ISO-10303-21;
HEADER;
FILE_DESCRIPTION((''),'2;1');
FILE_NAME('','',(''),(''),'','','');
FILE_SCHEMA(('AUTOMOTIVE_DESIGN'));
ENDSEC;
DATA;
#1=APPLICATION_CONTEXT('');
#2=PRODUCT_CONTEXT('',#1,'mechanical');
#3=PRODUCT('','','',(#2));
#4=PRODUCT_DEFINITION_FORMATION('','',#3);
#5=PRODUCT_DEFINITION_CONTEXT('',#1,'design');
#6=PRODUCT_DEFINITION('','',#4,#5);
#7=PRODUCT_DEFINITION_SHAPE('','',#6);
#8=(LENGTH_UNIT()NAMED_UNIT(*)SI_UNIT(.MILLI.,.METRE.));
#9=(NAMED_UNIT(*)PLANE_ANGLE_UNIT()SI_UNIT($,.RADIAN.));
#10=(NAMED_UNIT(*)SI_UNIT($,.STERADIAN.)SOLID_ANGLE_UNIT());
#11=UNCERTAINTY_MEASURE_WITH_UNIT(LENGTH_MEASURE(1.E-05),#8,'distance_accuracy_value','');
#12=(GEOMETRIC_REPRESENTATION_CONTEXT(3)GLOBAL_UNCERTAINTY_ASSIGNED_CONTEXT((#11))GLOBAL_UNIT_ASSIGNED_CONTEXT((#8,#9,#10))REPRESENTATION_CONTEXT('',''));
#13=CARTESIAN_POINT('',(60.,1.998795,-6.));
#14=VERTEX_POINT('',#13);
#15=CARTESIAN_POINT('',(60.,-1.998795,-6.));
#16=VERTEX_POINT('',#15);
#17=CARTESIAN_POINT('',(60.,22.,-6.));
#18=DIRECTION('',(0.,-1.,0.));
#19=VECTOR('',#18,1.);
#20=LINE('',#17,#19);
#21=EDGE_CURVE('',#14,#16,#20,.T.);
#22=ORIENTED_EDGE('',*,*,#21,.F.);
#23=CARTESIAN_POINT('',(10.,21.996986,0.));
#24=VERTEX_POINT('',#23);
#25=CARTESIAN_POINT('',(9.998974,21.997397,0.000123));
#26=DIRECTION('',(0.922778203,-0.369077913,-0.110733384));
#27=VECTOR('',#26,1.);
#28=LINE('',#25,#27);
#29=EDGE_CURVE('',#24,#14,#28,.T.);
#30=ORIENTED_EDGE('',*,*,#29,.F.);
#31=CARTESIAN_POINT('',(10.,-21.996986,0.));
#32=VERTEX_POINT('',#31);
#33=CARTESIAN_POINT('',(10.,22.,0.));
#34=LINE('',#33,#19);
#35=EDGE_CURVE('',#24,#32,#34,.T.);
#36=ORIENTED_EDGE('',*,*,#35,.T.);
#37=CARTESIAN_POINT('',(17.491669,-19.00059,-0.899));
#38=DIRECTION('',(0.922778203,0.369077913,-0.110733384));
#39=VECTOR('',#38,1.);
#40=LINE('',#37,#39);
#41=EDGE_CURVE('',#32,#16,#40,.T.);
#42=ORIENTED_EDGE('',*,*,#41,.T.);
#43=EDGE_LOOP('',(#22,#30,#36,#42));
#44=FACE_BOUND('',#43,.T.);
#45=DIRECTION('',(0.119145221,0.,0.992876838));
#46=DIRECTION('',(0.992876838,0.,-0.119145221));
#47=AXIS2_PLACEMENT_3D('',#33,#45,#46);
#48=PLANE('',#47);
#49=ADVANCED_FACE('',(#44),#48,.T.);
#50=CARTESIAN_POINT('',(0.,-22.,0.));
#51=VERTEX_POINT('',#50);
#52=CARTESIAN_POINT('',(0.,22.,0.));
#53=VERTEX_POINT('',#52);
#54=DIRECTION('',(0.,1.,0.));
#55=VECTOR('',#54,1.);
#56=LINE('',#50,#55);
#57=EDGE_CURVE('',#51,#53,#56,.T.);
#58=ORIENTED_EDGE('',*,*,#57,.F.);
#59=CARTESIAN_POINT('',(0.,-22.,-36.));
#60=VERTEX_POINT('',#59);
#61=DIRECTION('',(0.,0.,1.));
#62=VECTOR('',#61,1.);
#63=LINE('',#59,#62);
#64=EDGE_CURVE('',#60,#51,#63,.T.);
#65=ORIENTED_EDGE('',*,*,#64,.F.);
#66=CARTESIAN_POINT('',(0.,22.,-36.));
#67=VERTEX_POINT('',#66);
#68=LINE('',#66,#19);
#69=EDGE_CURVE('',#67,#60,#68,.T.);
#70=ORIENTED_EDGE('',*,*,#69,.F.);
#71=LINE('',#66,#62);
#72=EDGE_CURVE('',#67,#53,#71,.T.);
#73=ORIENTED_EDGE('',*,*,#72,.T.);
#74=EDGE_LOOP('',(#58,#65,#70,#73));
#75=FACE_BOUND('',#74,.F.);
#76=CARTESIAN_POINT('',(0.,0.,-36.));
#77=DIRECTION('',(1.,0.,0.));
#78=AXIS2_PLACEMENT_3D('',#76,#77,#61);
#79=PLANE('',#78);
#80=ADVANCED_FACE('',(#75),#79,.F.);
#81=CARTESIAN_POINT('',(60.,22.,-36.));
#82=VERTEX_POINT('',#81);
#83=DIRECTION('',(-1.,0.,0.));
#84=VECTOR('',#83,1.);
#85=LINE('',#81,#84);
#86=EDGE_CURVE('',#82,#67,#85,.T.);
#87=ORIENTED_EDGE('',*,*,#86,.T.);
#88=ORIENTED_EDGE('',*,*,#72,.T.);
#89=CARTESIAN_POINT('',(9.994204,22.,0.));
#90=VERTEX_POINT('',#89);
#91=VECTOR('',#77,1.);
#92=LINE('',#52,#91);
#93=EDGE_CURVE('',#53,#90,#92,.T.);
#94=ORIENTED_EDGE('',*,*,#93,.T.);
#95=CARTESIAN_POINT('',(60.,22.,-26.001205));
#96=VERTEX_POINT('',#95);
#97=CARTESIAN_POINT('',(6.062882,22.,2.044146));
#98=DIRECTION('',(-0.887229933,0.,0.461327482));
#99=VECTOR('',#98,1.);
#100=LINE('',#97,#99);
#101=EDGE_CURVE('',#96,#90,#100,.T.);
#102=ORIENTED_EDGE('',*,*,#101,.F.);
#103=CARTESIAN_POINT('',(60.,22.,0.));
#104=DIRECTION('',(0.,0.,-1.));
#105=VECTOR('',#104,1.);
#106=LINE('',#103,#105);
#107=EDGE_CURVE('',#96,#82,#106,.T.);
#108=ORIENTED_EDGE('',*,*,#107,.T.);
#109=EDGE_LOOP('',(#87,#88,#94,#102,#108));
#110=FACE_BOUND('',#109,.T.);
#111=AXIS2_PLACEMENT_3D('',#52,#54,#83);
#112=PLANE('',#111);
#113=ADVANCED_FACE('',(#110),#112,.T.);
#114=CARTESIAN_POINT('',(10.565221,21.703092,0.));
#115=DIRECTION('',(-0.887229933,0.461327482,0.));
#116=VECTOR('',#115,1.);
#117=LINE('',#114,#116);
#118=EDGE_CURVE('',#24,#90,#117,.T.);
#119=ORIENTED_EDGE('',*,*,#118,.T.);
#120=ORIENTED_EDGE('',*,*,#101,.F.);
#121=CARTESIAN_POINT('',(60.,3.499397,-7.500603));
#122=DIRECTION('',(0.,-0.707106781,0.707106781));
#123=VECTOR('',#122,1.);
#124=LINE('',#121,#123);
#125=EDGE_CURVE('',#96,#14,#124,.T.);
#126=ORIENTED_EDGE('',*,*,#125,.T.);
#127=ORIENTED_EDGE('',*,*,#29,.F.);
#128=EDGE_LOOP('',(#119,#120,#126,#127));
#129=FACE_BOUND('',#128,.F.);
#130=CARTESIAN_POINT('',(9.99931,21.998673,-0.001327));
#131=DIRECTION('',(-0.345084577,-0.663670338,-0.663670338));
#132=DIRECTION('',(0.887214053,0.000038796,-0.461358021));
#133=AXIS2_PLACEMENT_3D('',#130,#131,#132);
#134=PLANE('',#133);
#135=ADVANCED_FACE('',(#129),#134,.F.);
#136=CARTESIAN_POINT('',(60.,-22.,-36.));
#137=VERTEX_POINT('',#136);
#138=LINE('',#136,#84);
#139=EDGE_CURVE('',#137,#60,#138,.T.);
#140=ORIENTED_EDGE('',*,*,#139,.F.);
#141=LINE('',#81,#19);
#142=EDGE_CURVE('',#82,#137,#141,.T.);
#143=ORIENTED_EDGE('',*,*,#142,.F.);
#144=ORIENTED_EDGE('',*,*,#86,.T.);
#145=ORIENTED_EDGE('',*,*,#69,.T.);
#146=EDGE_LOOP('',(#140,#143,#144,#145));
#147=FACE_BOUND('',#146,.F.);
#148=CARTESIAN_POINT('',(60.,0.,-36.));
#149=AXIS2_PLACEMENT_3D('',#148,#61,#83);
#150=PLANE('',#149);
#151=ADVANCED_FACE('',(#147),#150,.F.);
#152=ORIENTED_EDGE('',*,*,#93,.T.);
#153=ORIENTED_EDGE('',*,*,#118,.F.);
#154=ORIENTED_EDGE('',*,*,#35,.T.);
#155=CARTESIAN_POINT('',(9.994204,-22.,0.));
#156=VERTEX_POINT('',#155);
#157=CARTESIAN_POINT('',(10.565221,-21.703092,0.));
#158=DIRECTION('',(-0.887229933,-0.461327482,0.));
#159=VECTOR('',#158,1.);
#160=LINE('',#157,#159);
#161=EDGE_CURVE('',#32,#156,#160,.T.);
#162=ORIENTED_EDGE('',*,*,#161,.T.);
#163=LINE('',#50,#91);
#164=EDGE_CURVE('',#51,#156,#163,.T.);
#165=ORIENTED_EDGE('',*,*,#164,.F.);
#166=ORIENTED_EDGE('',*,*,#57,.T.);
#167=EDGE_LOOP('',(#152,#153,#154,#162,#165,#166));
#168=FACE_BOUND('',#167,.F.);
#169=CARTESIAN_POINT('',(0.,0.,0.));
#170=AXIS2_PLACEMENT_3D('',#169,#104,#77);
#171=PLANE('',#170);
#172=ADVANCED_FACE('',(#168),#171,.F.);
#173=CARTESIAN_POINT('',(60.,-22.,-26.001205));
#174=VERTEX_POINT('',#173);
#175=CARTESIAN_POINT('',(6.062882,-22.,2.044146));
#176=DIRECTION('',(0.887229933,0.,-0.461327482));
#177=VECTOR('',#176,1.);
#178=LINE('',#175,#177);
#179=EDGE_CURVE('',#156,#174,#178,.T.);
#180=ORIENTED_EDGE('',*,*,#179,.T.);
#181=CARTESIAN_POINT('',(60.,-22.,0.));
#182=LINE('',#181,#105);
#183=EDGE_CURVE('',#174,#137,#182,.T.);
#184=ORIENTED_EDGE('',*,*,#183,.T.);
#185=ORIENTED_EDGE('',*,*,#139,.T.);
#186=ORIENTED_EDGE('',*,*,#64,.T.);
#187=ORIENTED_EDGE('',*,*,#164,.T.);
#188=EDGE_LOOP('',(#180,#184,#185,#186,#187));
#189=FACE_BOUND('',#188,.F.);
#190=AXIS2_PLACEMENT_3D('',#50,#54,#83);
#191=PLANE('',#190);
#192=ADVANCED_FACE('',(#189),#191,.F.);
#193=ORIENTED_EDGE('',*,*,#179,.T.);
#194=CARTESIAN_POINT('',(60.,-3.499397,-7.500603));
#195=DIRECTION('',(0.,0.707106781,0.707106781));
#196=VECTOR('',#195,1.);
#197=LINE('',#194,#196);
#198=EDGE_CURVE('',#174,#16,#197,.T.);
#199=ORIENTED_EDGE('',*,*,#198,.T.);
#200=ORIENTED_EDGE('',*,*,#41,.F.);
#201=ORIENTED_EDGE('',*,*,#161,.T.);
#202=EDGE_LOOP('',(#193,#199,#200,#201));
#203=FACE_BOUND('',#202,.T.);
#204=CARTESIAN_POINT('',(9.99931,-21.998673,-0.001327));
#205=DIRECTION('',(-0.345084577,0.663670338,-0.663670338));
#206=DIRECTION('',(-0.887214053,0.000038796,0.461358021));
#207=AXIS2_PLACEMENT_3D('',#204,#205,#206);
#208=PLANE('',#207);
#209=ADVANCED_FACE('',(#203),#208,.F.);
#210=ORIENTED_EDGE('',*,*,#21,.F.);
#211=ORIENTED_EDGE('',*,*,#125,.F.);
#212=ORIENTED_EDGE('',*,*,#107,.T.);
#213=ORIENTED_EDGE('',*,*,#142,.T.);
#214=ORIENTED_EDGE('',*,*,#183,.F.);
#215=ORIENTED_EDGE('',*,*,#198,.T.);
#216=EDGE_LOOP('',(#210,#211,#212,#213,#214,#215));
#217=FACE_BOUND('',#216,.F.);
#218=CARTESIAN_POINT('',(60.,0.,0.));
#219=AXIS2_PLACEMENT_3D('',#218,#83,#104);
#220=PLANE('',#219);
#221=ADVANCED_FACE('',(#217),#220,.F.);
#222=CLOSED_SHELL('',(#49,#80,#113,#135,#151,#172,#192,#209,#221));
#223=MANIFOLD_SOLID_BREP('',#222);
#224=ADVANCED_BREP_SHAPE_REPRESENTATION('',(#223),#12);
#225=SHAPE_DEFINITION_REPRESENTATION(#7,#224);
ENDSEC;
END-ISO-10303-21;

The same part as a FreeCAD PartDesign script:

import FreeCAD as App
import Part
import Sketcher
from FreeCAD import Vector


def add_polygon(sketch, points):
    """Adds a closed chain of lines whose ends are joined by coincident constraints."""
    first, n = sketch.GeometryCount, len(points)
    for a, b in zip(points, points[1:] + points[:1]):
        sketch.addGeometry(Part.LineSegment(App.Vector(*a, 0), App.Vector(*b, 0)), False)
    for i in range(n):
        sketch.addConstraint(Sketcher.Constraint("Coincident", first + i, 2, first + (i + 1) % n, 1))

doc = App.newDocument("Part")
body = doc.addObject("PartDesign::Body", "Body")

# Sketch on XZ plane
sketch1 = doc.addObject("Sketcher::SketchObject", "Sketch")
body.addObject(sketch1)
sketch1.AttachmentSupport = (doc.XZ_Plane, [""])
sketch1.MapMode = "FlatFace"
add_polygon(sketch1, [(0, -36), (0, 0), (60, 0), (60, -36)])  # lines 0-3
sketch1.addConstraint([
    Sketcher.Constraint("Vertical", 0),
    Sketcher.Constraint("Horizontal", 1),
    Sketcher.Constraint("Vertical", 2),
    Sketcher.Constraint("Horizontal", 3),
    Sketcher.Constraint("Coincident", 0, 2, -1, 1),
    Sketcher.Constraint("DistanceX", 1, 1, 1, 2, 60.0),
    Sketcher.Constraint("DistanceY", 0, 1, 0, 2, 36.0),
])
pad1 = doc.addObject("PartDesign::Pad", "Pad")
body.addObject(pad1)
pad1.Profile = sketch1
pad1.Length = 44
pad1.Midplane = True

# Sketch on XZ plane
sketch2 = doc.addObject("Sketcher::SketchObject", "Sketch001")
body.addObject(sketch2)
sketch2.AttachmentSupport = (doc.XZ_Plane, [""])
sketch2.MapMode = "FlatFace"
sketch2.AttachmentOffset = App.Placement(Vector(0, 0, -22), App.Rotation())
add_polygon(sketch2, [(60, -6), (10, 0), (60, 0)])  # lines 0-2
sketch2.addConstraint([
    Sketcher.Constraint("Horizontal", 1),
    Sketcher.Constraint("Vertical", 2),
    Sketcher.Constraint("PointOnObject", 0, 2, -1),
    Sketcher.Constraint("DistanceX", -1, 1, 0, 2, 10.0),
    Sketcher.Constraint("DistanceX", 1, 1, 1, 2, 50.0),
    Sketcher.Constraint("DistanceY", 2, 2, 2, 1, 6.0),
])
pocket1 = doc.addObject("PartDesign::Pocket", "Pocket")
body.addObject(pocket1)
pocket1.Profile = sketch2
pocket1.Length = 60
pocket1.Reversed = True

# Sketch on an angled plane
sketch3 = doc.addObject("Sketcher::SketchObject", "Sketch002")
body.addObject(sketch3)
sketch3.Placement = App.Placement(Vector(10, 22, 0), App.Rotation(Vector(0.887214053, 0.000038796, -0.461358021), Vector(0.306215381, -0.748025188, 0.588804263), Vector(-0.345084577, -0.663670338, -0.663670338), "ZXY"))
add_polygon(sketch3, [(-15.1543, 28.8166), (-15.1543, -12.3218), (93.717, -12.3218), (93.717, 28.8166)])  # lines 0-3
sketch3.addConstraint([
    Sketcher.Constraint("Vertical", 0),
    Sketcher.Constraint("Horizontal", 1),
    Sketcher.Constraint("Vertical", 2),
    Sketcher.Constraint("Horizontal", 3),
    Sketcher.Constraint("DistanceX", 1, 1, 1, 2, 108.8713),
    Sketcher.Constraint("DistanceY", 0, 2, 0, 1, 41.1384),
    Sketcher.Constraint("DistanceX", -1, 1, 1, 2, 93.717),
    Sketcher.Constraint("DistanceY", 0, 2, -1, 1, 12.3218),
])
pocket2 = doc.addObject("PartDesign::Pocket", "Pocket001")
body.addObject(pocket2)
pocket2.Profile = sketch3
pocket2.Length = 40
doc.recompute()

mirrored = doc.addObject("PartDesign::Mirrored", "Mirrored")
body.addObject(mirrored)
mirrored.Originals = [pocket2]
mirrored.MirrorPlane = (doc.XZ_Plane, [""])
body.Tip = mirrored

doc.recompute()
